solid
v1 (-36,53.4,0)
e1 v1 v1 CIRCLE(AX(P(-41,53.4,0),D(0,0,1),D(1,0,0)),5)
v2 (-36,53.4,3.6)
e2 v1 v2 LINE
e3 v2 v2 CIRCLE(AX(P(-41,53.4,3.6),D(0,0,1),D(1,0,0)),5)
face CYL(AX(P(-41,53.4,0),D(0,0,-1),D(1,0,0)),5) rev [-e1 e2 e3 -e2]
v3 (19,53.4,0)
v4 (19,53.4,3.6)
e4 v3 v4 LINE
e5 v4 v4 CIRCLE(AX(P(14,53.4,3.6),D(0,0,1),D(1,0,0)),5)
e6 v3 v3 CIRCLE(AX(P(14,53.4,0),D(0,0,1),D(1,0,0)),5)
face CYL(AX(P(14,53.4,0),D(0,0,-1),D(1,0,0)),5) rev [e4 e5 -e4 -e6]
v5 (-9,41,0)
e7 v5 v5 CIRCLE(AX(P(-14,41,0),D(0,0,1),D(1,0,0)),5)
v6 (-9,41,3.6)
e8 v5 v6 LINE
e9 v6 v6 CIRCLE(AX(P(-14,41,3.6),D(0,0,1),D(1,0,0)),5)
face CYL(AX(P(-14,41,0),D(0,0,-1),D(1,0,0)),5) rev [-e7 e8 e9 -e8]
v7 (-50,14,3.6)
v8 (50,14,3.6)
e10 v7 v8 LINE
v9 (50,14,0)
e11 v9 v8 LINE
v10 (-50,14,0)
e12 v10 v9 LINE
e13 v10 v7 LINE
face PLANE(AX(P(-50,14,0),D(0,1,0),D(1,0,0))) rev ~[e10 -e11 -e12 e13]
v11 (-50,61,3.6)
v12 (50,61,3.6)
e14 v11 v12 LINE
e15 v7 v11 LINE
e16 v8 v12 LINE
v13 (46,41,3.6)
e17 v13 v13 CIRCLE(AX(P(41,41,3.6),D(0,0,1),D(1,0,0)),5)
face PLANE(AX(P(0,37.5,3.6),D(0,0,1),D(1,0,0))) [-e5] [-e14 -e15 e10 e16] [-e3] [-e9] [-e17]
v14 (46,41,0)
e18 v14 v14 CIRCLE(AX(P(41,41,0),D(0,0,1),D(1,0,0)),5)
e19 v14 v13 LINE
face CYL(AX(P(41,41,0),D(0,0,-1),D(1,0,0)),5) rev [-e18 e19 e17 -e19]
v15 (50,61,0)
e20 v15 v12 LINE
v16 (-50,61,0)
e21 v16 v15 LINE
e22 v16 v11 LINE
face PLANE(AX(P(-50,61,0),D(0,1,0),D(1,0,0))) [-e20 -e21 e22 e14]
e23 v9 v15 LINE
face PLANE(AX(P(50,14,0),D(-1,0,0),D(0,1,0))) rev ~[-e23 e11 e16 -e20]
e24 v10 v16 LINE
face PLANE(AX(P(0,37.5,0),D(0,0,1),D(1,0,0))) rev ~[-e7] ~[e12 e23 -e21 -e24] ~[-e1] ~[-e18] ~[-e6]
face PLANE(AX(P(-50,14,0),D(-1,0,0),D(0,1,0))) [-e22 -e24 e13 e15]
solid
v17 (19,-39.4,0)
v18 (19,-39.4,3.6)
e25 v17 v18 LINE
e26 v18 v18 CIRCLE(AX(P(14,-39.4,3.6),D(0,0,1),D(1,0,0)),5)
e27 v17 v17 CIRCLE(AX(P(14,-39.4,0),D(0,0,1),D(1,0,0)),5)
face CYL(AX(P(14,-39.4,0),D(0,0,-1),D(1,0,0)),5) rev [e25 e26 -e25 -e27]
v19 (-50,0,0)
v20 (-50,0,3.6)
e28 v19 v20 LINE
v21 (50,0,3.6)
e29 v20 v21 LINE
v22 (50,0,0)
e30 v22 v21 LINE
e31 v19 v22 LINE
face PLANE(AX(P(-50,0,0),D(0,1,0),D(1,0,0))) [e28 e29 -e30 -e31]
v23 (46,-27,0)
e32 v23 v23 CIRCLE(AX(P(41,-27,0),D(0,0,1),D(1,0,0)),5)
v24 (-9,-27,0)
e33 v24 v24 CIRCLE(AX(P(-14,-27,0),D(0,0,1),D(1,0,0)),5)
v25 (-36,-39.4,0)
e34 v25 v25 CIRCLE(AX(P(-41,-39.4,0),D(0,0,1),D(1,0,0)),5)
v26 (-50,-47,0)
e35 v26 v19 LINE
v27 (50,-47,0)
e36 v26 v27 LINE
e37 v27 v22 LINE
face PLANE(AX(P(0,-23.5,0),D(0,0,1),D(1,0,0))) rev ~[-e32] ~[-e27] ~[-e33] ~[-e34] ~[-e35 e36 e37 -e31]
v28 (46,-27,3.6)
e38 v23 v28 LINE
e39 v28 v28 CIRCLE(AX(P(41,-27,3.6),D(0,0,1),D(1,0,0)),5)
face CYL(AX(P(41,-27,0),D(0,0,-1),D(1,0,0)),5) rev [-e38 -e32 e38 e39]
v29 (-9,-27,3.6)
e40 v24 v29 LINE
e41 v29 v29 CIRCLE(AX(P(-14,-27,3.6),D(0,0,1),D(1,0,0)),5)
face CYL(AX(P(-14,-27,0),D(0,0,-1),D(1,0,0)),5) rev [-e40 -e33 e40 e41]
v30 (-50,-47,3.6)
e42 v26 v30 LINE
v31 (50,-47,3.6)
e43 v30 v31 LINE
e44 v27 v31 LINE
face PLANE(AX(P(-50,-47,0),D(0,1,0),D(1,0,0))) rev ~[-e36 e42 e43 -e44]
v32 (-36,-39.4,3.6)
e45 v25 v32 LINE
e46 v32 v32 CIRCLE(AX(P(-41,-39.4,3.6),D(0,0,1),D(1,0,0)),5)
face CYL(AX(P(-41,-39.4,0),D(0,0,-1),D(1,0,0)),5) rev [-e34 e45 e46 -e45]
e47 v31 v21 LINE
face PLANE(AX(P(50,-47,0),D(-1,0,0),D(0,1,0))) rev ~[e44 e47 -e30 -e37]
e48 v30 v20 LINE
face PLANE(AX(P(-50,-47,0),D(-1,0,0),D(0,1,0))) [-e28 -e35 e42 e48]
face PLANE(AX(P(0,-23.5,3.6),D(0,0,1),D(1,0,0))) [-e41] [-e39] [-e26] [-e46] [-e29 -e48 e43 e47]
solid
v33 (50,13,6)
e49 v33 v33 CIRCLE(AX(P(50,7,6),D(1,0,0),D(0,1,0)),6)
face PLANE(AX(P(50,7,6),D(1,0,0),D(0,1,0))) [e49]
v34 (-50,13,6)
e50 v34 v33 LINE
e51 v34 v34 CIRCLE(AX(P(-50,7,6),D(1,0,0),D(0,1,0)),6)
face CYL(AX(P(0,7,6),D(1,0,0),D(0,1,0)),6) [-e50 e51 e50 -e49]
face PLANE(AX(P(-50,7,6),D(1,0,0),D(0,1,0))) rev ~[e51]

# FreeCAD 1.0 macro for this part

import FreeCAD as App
import Part
import Sketcher

doc = App.newDocument("Part")
body = doc.addObject("PartDesign::Body", "Body")
body.AllowCompound = True

# Sketch on XY plane
sketch1 = body.newObject("Sketcher::SketchObject", "Sketch")
sketch1.AttachmentSupport = (doc.getObject("XY_Plane"), [""])
sketch1.MapMode = "FlatFace"
sketch1.addGeometry([
    Part.LineSegment(App.Vector(-50, 0, 0), App.Vector(-50, -47, 0)),  # 0
    Part.LineSegment(App.Vector(-50, -47, 0), App.Vector(50, -47, 0)),  # 1
    Part.LineSegment(App.Vector(50, -47, 0), App.Vector(50, 0, 0)),  # 2
    Part.LineSegment(App.Vector(50, 0, 0), App.Vector(-50, 0, 0)),  # 3
    Part.Circle(App.Vector(-41, -39, 0), App.Vector(0, 0, 1), 5),  # 4
    Part.Circle(App.Vector(14, -39, 0), App.Vector(0, 0, 1), 5),  # 5
    Part.Circle(App.Vector(-14, -27, 0), App.Vector(0, 0, 1), 5),  # 6
    Part.Circle(App.Vector(41, -27, 0), App.Vector(0, 0, 1), 5),  # 7
    Part.LineSegment(App.Vector(-50, 61, 0), App.Vector(-50, 14, 0)),  # 8
    Part.LineSegment(App.Vector(-50, 14, 0), App.Vector(50, 14, 0)),  # 9
    Part.LineSegment(App.Vector(50, 14, 0), App.Vector(50, 61, 0)),  # 10
    Part.LineSegment(App.Vector(50, 61, 0), App.Vector(-50, 61, 0)),  # 11
    Part.Circle(App.Vector(-14, 41, 0), App.Vector(0, 0, 1), 5),  # 12
    Part.Circle(App.Vector(41, 41, 0), App.Vector(0, 0, 1), 5),  # 13
    Part.Circle(App.Vector(-41, 53, 0), App.Vector(0, 0, 1), 5),  # 14
    Part.Circle(App.Vector(14, 53, 0), App.Vector(0, 0, 1), 5),  # 15
], False)
sketch1.addConstraint([
    Sketcher.Constraint("Coincident", 0, 2, 1, 1),
    Sketcher.Constraint("Coincident", 1, 2, 2, 1),
    Sketcher.Constraint("Coincident", 2, 2, 3, 1),
    Sketcher.Constraint("Coincident", 3, 2, 0, 1),
    Sketcher.Constraint("Coincident", 8, 2, 9, 1),
    Sketcher.Constraint("Coincident", 9, 2, 10, 1),
    Sketcher.Constraint("Coincident", 10, 2, 11, 1),
    Sketcher.Constraint("Coincident", 11, 2, 8, 1),
    Sketcher.Constraint("Vertical", 0),
    Sketcher.Constraint("Horizontal", 1),
    Sketcher.Constraint("Vertical", 2),
    Sketcher.Constraint("Horizontal", 3),
    Sketcher.Constraint("Vertical", 8),
    Sketcher.Constraint("Horizontal", 9),
    Sketcher.Constraint("Vertical", 10),
    Sketcher.Constraint("Horizontal", 11),
    Sketcher.Constraint("Equal", 4, 5),
    Sketcher.Constraint("Equal", 5, 6),
    Sketcher.Constraint("Equal", 6, 7),
    Sketcher.Constraint("Equal", 7, 12),
    Sketcher.Constraint("Equal", 12, 13),
    Sketcher.Constraint("Equal", 13, 14),
    Sketcher.Constraint("Equal", 14, 15),
    Sketcher.Constraint("Symmetric", 2, 2, 3, 2, -1, 1),
    Sketcher.Constraint("Horizontal", 4, 3, 5, 3),
    Sketcher.Constraint("Horizontal", 6, 3, 7, 3),
    Sketcher.Constraint("Horizontal", 12, 3, 13, 3),
    Sketcher.Constraint("Horizontal", 14, 3, 15, 3),
    Sketcher.Constraint("Vertical", 6, 3, 12, 3),
    Sketcher.Constraint("Vertical", 7, 3, 13, 3),
    Sketcher.Constraint("Vertical", 4, 3, 14, 3),
    Sketcher.Constraint("Vertical", 5, 3, 15, 3),
    Sketcher.Constraint("Vertical", 3, 2, 8, 2),
    Sketcher.Constraint("Vertical", 2, 2, 9, 2),
    Sketcher.Constraint("Equal", 2, 8),
    Sketcher.Constraint("Diameter", 4, 10.0),
    Sketcher.Constraint("DistanceX", 1, 1, 1, 2, 100.0),
    Sketcher.Constraint("DistanceY", 0, 2, 0, 1, 47.0),
    Sketcher.Constraint("DistanceX", 4, 3, -1, 1, 41.0),
    Sketcher.Constraint("DistanceX", -1, 1, 5, 3, 14.0),
    Sketcher.Constraint("DistanceX", 6, 3, -1, 1, 14.0),
    Sketcher.Constraint("DistanceY", 6, 3, -1, 1, 27.0),
    Sketcher.Constraint("DistanceX", -1, 1, 7, 3, 41.0),
    Sketcher.Constraint("DistanceY", -1, 1, 12, 3, 41.0),
    Sketcher.Constraint("DistanceY", -1, 1, 8, 2, 14.0),
    Sketcher.Constraint("DistanceY", 4, 3, -1, 1, 39.4),
    Sketcher.Constraint("DistanceY", -1, 1, 14, 3, 53.4),
])
pad1 = body.newObject("PartDesign::Pad", "Pad")
pad1.Profile = sketch1
pad1.Length = 3.6
body2 = doc.addObject("PartDesign::Body", "Body001")

# Sketch on YZ plane
sketch2 = body2.newObject("Sketcher::SketchObject", "Sketch001")
sketch2.AttachmentSupport = (doc.getObject("YZ_Plane001"), [""])
sketch2.MapMode = "FlatFace"
sketch2.addGeometry(Part.Circle(App.Vector(7, 6, 0), App.Vector(0, 0, 1), 6), False)
sketch2.addConstraint([
    Sketcher.Constraint("Diameter", 0, 12.0),
    Sketcher.Constraint("DistanceX", -1, 1, 0, 3, 7.0),
    Sketcher.Constraint("DistanceY", -1, 1, 0, 3, 6.0),
])
pad2 = body2.newObject("PartDesign::Pad", "Pad001")
pad2.Profile = sketch2
pad2.Type = "TwoLengths"
pad2.Length = 50
pad2.Length2 = 50

doc.recompute()
